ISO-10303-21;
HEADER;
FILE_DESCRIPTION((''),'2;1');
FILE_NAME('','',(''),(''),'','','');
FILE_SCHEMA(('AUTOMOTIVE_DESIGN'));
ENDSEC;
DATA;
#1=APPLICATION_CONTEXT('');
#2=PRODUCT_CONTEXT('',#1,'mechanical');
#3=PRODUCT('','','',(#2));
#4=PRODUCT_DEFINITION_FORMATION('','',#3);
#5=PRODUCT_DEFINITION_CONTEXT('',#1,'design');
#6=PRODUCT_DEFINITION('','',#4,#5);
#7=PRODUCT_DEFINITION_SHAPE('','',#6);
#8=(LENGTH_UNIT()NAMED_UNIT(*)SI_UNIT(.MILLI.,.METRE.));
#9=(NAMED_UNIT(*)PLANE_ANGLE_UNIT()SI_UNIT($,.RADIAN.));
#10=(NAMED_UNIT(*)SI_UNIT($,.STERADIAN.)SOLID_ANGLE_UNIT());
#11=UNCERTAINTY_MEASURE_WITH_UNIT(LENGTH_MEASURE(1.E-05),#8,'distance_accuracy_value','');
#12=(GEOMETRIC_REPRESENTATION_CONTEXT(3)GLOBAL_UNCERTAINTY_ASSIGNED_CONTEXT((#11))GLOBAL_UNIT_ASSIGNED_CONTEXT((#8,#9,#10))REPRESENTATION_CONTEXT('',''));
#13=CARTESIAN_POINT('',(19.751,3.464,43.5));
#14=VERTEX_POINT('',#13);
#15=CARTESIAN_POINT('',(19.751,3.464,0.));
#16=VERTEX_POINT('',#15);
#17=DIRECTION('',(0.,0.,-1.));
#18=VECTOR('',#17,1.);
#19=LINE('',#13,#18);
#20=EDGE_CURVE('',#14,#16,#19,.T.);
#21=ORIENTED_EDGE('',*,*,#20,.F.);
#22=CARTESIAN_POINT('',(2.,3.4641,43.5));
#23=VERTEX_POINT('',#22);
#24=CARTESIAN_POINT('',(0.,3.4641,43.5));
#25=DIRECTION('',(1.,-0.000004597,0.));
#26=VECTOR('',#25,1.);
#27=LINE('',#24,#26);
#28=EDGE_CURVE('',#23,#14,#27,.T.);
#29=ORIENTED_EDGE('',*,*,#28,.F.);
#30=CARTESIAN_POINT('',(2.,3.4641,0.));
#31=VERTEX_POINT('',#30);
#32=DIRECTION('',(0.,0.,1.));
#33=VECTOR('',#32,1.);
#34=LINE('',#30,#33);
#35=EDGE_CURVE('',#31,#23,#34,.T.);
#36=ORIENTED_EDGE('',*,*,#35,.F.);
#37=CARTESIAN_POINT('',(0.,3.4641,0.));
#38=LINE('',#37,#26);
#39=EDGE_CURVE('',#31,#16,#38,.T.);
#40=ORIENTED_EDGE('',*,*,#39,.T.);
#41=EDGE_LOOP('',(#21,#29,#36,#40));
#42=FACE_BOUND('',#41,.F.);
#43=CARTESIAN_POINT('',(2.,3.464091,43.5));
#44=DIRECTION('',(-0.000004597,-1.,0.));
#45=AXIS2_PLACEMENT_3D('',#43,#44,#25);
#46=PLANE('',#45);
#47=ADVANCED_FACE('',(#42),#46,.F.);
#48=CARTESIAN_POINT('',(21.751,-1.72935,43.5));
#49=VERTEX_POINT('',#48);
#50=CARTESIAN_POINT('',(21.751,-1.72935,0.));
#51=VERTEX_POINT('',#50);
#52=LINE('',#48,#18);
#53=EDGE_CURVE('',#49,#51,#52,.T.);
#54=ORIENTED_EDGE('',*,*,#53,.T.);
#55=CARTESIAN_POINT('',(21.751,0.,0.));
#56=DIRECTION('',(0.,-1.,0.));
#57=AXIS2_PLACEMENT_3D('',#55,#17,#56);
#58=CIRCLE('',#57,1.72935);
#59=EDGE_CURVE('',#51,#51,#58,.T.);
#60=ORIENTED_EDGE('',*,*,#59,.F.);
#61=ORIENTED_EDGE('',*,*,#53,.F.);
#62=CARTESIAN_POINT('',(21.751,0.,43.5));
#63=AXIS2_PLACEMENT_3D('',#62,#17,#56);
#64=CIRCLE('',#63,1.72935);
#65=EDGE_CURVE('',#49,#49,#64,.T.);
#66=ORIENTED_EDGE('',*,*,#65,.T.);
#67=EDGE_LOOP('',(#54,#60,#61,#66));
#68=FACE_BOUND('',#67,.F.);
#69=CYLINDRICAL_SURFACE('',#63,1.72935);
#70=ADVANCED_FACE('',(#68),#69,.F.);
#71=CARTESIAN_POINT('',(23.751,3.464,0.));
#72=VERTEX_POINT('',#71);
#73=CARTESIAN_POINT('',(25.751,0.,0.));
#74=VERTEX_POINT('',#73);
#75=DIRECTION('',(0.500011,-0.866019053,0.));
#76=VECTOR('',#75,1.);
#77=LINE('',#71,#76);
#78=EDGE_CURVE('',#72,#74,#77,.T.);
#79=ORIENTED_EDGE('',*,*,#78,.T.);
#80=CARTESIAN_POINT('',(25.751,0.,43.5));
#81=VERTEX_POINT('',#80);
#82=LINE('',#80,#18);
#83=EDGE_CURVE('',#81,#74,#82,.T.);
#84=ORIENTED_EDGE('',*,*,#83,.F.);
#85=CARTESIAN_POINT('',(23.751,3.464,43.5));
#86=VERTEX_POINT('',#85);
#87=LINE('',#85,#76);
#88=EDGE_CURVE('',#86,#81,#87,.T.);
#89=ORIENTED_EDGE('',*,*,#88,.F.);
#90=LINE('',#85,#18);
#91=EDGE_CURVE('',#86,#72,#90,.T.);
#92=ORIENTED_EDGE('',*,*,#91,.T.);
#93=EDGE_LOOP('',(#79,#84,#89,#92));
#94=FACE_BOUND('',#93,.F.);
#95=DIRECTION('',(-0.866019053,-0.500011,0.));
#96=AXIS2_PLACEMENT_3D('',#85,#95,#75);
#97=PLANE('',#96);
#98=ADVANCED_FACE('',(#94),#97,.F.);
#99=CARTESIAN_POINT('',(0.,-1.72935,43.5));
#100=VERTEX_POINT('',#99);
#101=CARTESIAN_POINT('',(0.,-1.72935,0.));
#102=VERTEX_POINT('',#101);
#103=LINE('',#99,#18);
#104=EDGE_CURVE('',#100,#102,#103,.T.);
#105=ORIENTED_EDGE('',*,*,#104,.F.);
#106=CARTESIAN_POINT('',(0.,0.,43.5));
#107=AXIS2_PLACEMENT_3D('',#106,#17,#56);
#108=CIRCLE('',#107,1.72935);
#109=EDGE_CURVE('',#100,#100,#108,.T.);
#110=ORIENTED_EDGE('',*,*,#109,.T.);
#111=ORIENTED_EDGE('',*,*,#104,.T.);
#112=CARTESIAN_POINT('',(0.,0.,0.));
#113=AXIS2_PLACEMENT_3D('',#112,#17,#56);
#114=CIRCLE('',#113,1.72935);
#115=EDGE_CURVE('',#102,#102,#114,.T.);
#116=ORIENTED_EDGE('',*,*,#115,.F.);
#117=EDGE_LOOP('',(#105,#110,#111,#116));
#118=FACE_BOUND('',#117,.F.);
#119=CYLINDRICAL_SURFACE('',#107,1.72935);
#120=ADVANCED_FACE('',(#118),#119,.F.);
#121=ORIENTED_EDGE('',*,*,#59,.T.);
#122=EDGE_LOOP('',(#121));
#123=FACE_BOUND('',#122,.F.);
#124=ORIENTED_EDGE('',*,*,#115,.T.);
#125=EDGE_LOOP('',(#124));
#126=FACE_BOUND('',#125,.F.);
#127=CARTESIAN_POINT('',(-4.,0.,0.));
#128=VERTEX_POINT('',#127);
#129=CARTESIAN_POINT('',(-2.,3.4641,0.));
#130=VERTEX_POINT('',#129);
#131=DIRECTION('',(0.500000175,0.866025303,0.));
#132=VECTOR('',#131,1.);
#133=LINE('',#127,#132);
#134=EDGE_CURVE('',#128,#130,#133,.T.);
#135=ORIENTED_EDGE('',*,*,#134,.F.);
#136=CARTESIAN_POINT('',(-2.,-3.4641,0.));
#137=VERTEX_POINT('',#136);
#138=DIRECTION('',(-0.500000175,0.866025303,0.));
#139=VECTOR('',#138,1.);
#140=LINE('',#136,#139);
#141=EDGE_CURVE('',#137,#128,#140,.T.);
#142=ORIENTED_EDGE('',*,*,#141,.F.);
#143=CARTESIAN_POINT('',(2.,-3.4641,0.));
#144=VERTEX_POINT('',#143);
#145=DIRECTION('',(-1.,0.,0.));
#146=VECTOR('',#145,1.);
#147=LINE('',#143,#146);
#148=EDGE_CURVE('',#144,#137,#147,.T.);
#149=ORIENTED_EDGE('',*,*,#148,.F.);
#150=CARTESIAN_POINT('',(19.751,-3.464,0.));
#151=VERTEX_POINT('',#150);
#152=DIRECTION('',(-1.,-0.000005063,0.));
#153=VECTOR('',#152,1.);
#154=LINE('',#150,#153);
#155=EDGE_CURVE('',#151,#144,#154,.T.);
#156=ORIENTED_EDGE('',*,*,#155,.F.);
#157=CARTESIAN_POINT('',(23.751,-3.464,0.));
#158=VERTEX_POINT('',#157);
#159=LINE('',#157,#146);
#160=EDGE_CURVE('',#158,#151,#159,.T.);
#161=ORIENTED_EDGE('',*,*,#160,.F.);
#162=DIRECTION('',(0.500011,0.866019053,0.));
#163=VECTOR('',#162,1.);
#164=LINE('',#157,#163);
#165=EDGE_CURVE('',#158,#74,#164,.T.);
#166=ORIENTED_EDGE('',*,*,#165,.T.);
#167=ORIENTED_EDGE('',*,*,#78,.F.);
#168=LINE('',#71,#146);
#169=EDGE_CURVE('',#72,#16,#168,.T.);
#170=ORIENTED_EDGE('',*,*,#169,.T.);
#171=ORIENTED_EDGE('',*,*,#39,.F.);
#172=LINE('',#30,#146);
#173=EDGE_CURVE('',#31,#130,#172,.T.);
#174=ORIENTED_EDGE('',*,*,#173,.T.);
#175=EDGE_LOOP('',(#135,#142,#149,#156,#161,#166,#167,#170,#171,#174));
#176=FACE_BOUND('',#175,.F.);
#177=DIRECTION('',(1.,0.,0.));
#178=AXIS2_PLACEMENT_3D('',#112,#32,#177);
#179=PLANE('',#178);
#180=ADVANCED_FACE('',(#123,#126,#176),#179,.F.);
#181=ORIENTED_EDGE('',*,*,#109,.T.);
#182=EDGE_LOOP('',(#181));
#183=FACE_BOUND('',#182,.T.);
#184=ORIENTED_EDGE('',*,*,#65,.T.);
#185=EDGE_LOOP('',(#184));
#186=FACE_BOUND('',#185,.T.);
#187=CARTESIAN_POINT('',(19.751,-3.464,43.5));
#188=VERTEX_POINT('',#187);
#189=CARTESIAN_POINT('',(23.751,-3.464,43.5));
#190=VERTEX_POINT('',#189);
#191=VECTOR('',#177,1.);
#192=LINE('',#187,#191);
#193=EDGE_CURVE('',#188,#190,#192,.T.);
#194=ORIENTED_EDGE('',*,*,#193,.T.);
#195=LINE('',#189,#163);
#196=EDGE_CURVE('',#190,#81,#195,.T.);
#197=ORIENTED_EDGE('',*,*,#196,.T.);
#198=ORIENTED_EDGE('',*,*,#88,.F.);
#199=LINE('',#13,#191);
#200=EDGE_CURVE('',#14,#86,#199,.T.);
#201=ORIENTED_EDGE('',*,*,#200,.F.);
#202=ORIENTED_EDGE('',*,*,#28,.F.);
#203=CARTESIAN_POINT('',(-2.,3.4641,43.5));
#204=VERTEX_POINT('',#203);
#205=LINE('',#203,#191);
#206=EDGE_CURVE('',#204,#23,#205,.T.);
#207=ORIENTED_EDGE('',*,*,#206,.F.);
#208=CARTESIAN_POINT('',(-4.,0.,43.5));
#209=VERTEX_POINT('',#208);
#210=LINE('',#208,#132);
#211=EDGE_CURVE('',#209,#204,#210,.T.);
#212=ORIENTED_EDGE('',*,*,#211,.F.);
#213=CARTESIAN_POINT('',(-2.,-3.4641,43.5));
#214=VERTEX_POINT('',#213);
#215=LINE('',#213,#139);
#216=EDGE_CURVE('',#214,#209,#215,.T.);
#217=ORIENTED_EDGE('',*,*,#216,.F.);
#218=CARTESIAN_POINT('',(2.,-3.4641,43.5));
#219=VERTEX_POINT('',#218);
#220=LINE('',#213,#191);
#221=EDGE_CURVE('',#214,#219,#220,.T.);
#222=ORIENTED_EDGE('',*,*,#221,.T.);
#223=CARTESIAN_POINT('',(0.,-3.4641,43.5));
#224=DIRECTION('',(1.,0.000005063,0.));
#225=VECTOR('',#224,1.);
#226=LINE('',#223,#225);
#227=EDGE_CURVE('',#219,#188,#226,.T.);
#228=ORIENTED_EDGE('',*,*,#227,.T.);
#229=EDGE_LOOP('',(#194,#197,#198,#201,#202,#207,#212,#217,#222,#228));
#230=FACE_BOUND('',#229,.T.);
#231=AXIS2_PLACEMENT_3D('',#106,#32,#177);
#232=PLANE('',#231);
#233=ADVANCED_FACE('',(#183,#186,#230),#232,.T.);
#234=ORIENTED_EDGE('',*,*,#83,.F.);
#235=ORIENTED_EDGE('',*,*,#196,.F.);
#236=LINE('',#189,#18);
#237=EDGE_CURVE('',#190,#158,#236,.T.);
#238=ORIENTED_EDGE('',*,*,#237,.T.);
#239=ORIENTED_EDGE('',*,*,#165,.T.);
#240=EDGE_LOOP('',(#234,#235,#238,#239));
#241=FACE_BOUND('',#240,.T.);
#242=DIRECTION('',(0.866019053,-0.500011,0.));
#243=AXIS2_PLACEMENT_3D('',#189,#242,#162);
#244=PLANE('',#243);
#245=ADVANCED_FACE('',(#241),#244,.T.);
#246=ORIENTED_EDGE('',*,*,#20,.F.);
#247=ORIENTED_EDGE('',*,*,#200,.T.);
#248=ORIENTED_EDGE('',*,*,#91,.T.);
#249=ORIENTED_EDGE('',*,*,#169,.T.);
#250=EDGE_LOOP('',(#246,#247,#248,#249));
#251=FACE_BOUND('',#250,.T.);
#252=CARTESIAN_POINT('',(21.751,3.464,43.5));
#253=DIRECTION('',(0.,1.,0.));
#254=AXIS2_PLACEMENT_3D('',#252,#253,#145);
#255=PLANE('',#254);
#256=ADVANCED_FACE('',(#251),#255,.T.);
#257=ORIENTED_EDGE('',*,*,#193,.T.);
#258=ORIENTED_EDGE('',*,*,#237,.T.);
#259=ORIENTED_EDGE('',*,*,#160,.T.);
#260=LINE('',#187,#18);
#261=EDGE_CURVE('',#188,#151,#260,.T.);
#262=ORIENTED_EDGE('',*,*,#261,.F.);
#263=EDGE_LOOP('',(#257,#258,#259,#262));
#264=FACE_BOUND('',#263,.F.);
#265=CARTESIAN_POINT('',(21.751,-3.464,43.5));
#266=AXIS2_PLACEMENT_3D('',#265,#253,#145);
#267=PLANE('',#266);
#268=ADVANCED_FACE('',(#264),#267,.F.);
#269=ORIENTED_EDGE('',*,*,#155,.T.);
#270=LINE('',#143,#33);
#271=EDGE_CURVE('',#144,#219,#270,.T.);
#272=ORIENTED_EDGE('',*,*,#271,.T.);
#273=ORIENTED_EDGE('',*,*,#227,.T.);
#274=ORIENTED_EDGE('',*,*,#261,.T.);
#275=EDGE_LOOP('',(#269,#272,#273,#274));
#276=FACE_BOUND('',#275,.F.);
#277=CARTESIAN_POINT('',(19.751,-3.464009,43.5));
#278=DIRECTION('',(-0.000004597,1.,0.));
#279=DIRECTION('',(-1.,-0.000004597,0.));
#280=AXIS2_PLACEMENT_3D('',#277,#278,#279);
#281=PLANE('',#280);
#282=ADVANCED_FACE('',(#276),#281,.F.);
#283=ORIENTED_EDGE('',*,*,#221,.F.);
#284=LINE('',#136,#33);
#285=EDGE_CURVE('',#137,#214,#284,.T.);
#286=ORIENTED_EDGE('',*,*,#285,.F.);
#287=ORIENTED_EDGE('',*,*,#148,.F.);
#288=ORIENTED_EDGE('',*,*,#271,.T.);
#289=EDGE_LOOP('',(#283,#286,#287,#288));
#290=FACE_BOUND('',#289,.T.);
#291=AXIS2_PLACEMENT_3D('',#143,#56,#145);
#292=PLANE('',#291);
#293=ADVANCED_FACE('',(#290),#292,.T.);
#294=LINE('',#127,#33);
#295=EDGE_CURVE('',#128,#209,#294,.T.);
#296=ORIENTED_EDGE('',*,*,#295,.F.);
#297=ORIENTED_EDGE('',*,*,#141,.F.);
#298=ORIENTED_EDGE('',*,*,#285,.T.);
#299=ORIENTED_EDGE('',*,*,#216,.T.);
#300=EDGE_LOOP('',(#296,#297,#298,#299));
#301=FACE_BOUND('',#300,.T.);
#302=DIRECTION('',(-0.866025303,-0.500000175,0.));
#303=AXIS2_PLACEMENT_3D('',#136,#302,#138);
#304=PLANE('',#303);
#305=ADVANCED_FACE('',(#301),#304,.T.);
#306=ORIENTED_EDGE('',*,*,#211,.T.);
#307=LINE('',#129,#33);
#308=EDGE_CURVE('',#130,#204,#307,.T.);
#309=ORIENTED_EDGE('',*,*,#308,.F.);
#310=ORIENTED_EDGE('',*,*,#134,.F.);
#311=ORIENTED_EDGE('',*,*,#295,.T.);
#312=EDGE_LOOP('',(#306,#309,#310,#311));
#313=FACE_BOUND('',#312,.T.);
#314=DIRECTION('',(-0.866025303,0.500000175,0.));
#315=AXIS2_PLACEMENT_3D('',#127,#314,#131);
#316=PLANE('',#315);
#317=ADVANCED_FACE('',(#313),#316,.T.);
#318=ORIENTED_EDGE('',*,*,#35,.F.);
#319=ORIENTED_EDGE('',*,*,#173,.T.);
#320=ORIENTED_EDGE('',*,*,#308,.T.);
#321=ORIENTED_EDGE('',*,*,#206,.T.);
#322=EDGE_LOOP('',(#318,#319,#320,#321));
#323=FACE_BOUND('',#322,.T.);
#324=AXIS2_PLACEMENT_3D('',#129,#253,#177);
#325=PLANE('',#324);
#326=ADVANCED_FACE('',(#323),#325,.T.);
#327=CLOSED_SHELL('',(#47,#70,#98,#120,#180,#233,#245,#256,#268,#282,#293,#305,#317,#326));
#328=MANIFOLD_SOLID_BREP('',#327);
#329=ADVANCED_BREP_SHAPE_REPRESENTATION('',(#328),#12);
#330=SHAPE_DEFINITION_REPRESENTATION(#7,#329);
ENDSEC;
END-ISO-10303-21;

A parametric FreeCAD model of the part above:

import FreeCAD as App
import Part
import Sketcher
from FreeCAD import Vector
Q = App.Units.Quantity


def add_polygon(sketch, points):
    """Adds a closed chain of lines whose ends are joined by coincident constraints."""
    first, n = sketch.GeometryCount, len(points)
    for a, b in zip(points, points[1:] + points[:1]):
        sketch.addGeometry(Part.LineSegment(App.Vector(*a, 0), App.Vector(*b, 0)), False)
    for i in range(n):
        sketch.addConstraint(Sketcher.Constraint("Coincident", first + i, 2, first + (i + 1) % n, 1))

doc = App.newDocument("Part")
params = doc.addObject("Spreadsheet::Sheet", "Params")
for row, (alias, value) in enumerate([
    ("sketch1_width", "4 mm"),
    ("sketch1_length", "4 mm"),
    ("pad1_length", "43.5 mm"),
    ("hole_diameter", "3.4587 mm"),
    ("hole_depth", "44 mm"),
    ("sketch3_width", "2 mm"),
    ("sketch3_width2", "4 mm"),
    ("sketch3_length", "4 mm"),
    ("pad2_length", "43.5 mm"),
    ("hole2_diameter", "3.4587 mm"),
    ("hole2_depth", "44 mm"),
], start=1):
    params.set(f"A{row}", alias)
    params.set(f"B{row}", "=" + value)
    params.setAlias(f"B{row}", alias)

body = doc.addObject("PartDesign::Body", "Body")

# Sketch on XY plane
sketch1 = doc.addObject("Sketcher::SketchObject", "Sketch")
body.addObject(sketch1)
sketch1.AttachmentSupport = (doc.XY_Plane, [""])
sketch1.MapMode = "FlatFace"
add_polygon(sketch1, [(4, 0), (2, 3.5), (-2, 3.5), (-4, 0), (-2, -3.5), (2, -3.5)])  # lines 0-5
sketch1.addConstraint([
    Sketcher.Constraint("Horizontal", 1),
    Sketcher.Constraint("Horizontal", 4),
    Sketcher.Constraint("Symmetric", 0, 2, 3, 2, -1, 1),
    Sketcher.Constraint("Symmetric", 2, 2, 5, 2, -1, 1),
    Sketcher.Constraint("PointOnObject", 2, 2, -1),
    Sketcher.Constraint("Parallel", 2, 5),
    Sketcher.Constraint("Vertical", 1, 2, 3, 2),
    Sketcher.Constraint("DistanceX", 1, 2, 1, 1, 4.0),
    Sketcher.Constraint("Angle", 0, Q("120 deg")),
    Sketcher.Constraint("Distance", 0, 4.0),
])
sketch1.setExpression("Constraints[13]", "Params.sketch1_width")
sketch1.setExpression("Constraints[15]", "Params.sketch1_length")
pad1 = doc.addObject("PartDesign::Pad", "Pad")
body.addObject(pad1)
pad1.Profile = sketch1
pad1.setExpression("Length", "Params.pad1_length")

# Sketch on XY plane
sketch2 = doc.addObject("Sketcher::SketchObject", "Sketch001")
body.addObject(sketch2)
sketch2.AttachmentSupport = (doc.XY_Plane, [""])
sketch2.MapMode = "FlatFace"
sketch2.AttachmentOffset = App.Placement(Vector(0, 0, 43.5), App.Rotation())
sketch2.addGeometry(Part.Circle(Vector(0, 0, 0), Vector(0, 0, 1), 1.7), False)
sketch2.addConstraint([
    Sketcher.Constraint("Coincident", 0, 3, -1, 1),
    Sketcher.Constraint("Diameter", 0, 3.4587),
])
doc.recompute()
hole = doc.addObject("PartDesign::Hole", "Hole")
body.addObject(hole)
hole.Profile = sketch2
hole.ThreadType = "None"
hole.setExpression("Diameter", "Params.hole_diameter")
hole.DepthType = "Dimension"
hole.setExpression("Depth", "Params.hole_depth")
hole.DrillPoint = "Flat"

# Sketch on XY plane
sketch3 = doc.addObject("Sketcher::SketchObject", "Sketch002")
body.addObject(sketch3)
sketch3.AttachmentSupport = (doc.XY_Plane, [""])
sketch3.MapMode = "FlatFace"
sketch3.AttachmentOffset = App.Placement(Vector(0, 0, 43.5), App.Rotation())
add_polygon(sketch3, [(19.8, 3.5), (2, 3.5), (0, 3.5), (4, 0), (0, -3.5), (19.8, -3.5), (23.8, -3.5), (25.8, 0), (23.8, 3.5)])  # lines 0-8
sketch3.addConstraint([
    Sketcher.Constraint("Horizontal", 0),
    Sketcher.Constraint("Horizontal", 1),
    Sketcher.Constraint("Horizontal", 4),
    Sketcher.Constraint("Horizontal", 5),
    Sketcher.Constraint("Horizontal", 8),
    Sketcher.Constraint("Symmetric", 1, 2, 3, 2, -1, 1),
    Sketcher.Constraint("PointOnObject", 1, 2, -2),
    Sketcher.Constraint("PointOnObject", 2, 2, -1),
    Sketcher.Constraint("PointOnObject", 6, 2, -1),
    Sketcher.Constraint("Vertical", 5, 2, 7, 2),
    Sketcher.Constraint("Vertical", 4, 2, 8, 2),
    Sketcher.Constraint("DistanceX", 1, 2, 1, 1, 2.0),
    Sketcher.Constraint("DistanceX", 5, 1, 5, 2, 4.0),
    Sketcher.Constraint("Distance", 6, 4.0),
    Sketcher.Constraint("DistanceX", -1, 1, 2, 2, 4.0),
    Sketcher.Constraint("DistanceX", 5, 2, 6, 2, 2.0),
    Sketcher.Constraint("DistanceX", 0, 2, 5, 2, 21.751),
])
sketch3.setExpression("Constraints[20]", "Params.sketch3_width")
sketch3.setExpression("Constraints[21]", "Params.sketch3_width2")
sketch3.setExpression("Constraints[22]", "Params.sketch3_length")
pad2 = doc.addObject("PartDesign::Pad", "Pad001")
body.addObject(pad2)
pad2.Profile = sketch3
pad2.setExpression("Length", "Params.pad2_length")
pad2.Reversed = True

# Sketch on XY plane
sketch4 = doc.addObject("Sketcher::SketchObject", "Sketch003")
body.addObject(sketch4)
sketch4.AttachmentSupport = (doc.XY_Plane, [""])
sketch4.MapMode = "FlatFace"
sketch4.AttachmentOffset = App.Placement(Vector(0, 0, 43.5), App.Rotation())
sketch4.addGeometry(Part.Circle(Vector(21.8, 0, 0), Vector(0, 0, 1), 1.7), False)
sketch4.addConstraint([
    Sketcher.Constraint("PointOnObject", 0, 3, -1),
    Sketcher.Constraint("Diameter", 0, 3.4587),
    Sketcher.Constraint("DistanceX", -1, 1, 0, 3, 21.751),
])
doc.recompute()
hole2 = doc.addObject("PartDesign::Hole", "Hole001")
body.addObject(hole2)
hole2.Profile = sketch4
hole2.ThreadType = "None"
hole2.setExpression("Diameter", "Params.hole2_diameter")
hole2.DepthType = "Dimension"
hole2.setExpression("Depth", "Params.hole2_depth")
hole2.DrillPoint = "Flat"

doc.recompute()
